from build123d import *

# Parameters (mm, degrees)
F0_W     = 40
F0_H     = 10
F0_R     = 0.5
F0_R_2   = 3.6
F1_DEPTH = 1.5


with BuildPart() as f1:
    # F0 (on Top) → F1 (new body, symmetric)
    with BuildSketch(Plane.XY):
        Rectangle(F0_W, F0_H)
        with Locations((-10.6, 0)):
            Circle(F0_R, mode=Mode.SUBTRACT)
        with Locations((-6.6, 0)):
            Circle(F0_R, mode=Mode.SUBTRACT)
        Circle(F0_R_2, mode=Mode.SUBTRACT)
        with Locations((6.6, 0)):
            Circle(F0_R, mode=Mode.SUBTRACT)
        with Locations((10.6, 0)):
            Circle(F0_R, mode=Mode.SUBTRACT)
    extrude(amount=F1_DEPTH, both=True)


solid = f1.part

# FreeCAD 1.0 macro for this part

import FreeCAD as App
import Part
import Sketcher

V = App.Vector
Q = App.Units.Quantity

doc = App.newDocument("Part")
body = doc.addObject("PartDesign::Body", "Body")

sketch1 = body.newObject("Sketcher::SketchObject", "Sketch")
sketch1.AttachmentSupport = (doc.getObject("XY_Plane"), [""])
sketch1.MapMode = "FlatFace"
sketch1.addGeometry([
    Part.LineSegment(V(-20, 5, 0), V(-20, -5, 0)),
    Part.LineSegment(V(-20, -5, 0), V(20, -5, 0)),
    Part.LineSegment(V(20, -5, 0), V(20, 5, 0)),
    Part.LineSegment(V(20, 5, 0), V(-20, 5, 0)),
    Part.Circle(V(-10.6, 0, 0), V(0, 0, 1), 0.5),
    Part.Circle(V(-6.6, 0, 0), V(0, 0, 1), 0.5),
    Part.Circle(V(0, 0, 0), V(0, 0, 1), 3.6),
    Part.Circle(V(6.6, 0, 0), V(0, 0, 1), 0.5),
    Part.Circle(V(10.6, 0, 0), V(0, 0, 1), 0.5),
], False)
sketch1.addConstraint([
    Sketcher.Constraint("Coincident", 0, 2, 1, 1),
    Sketcher.Constraint("Coincident", 1, 2, 2, 1),
    Sketcher.Constraint("Coincident", 2, 2, 3, 1),
    Sketcher.Constraint("Coincident", 3, 2, 0, 1),
    Sketcher.Constraint("Vertical", 0),
    Sketcher.Constraint("Horizontal", 1),
    Sketcher.Constraint("Vertical", 2),
    Sketcher.Constraint("Horizontal", 3),
    Sketcher.Constraint("Coincident", 6, 3, -1, 1),
    Sketcher.Constraint("Equal", 4, 5),
    Sketcher.Constraint("Equal", 5, 7),
    Sketcher.Constraint("Equal", 7, 8),
    Sketcher.Constraint("Symmetric", 5, 3, 7, 3, -1, 1),
    Sketcher.Constraint("Symmetric", 4, 3, 8, 3, -1, 1),
    Sketcher.Constraint("Symmetric", 0, 2, 2, 2, -1, 1),
    Sketcher.Constraint("PointOnObject", 4, 3, -1),
    Sketcher.Constraint("PointOnObject", 5, 3, -1),
    Sketcher.Constraint("Diameter", 4, Q("1 mm")),
    Sketcher.Constraint("Diameter", 6, Q("7.2 mm")),
    Sketcher.Constraint("DistanceX", 1, 1, 1, 2, Q("40 mm")),
    Sketcher.Constraint("DistanceY", 0, 2, 0, 1, Q("10 mm")),
    Sketcher.Constraint("DistanceX", 4, 3, 5, 3, Q("4 mm")),
    Sketcher.Constraint("DistanceX", 4, 3, -1, 1, Q("10.6 mm")),
])
pad1 = body.newObject("PartDesign::Pad", "Pad")
pad1.Profile = sketch1
pad1.Length = 3
pad1.Midplane = True

doc.recompute()
